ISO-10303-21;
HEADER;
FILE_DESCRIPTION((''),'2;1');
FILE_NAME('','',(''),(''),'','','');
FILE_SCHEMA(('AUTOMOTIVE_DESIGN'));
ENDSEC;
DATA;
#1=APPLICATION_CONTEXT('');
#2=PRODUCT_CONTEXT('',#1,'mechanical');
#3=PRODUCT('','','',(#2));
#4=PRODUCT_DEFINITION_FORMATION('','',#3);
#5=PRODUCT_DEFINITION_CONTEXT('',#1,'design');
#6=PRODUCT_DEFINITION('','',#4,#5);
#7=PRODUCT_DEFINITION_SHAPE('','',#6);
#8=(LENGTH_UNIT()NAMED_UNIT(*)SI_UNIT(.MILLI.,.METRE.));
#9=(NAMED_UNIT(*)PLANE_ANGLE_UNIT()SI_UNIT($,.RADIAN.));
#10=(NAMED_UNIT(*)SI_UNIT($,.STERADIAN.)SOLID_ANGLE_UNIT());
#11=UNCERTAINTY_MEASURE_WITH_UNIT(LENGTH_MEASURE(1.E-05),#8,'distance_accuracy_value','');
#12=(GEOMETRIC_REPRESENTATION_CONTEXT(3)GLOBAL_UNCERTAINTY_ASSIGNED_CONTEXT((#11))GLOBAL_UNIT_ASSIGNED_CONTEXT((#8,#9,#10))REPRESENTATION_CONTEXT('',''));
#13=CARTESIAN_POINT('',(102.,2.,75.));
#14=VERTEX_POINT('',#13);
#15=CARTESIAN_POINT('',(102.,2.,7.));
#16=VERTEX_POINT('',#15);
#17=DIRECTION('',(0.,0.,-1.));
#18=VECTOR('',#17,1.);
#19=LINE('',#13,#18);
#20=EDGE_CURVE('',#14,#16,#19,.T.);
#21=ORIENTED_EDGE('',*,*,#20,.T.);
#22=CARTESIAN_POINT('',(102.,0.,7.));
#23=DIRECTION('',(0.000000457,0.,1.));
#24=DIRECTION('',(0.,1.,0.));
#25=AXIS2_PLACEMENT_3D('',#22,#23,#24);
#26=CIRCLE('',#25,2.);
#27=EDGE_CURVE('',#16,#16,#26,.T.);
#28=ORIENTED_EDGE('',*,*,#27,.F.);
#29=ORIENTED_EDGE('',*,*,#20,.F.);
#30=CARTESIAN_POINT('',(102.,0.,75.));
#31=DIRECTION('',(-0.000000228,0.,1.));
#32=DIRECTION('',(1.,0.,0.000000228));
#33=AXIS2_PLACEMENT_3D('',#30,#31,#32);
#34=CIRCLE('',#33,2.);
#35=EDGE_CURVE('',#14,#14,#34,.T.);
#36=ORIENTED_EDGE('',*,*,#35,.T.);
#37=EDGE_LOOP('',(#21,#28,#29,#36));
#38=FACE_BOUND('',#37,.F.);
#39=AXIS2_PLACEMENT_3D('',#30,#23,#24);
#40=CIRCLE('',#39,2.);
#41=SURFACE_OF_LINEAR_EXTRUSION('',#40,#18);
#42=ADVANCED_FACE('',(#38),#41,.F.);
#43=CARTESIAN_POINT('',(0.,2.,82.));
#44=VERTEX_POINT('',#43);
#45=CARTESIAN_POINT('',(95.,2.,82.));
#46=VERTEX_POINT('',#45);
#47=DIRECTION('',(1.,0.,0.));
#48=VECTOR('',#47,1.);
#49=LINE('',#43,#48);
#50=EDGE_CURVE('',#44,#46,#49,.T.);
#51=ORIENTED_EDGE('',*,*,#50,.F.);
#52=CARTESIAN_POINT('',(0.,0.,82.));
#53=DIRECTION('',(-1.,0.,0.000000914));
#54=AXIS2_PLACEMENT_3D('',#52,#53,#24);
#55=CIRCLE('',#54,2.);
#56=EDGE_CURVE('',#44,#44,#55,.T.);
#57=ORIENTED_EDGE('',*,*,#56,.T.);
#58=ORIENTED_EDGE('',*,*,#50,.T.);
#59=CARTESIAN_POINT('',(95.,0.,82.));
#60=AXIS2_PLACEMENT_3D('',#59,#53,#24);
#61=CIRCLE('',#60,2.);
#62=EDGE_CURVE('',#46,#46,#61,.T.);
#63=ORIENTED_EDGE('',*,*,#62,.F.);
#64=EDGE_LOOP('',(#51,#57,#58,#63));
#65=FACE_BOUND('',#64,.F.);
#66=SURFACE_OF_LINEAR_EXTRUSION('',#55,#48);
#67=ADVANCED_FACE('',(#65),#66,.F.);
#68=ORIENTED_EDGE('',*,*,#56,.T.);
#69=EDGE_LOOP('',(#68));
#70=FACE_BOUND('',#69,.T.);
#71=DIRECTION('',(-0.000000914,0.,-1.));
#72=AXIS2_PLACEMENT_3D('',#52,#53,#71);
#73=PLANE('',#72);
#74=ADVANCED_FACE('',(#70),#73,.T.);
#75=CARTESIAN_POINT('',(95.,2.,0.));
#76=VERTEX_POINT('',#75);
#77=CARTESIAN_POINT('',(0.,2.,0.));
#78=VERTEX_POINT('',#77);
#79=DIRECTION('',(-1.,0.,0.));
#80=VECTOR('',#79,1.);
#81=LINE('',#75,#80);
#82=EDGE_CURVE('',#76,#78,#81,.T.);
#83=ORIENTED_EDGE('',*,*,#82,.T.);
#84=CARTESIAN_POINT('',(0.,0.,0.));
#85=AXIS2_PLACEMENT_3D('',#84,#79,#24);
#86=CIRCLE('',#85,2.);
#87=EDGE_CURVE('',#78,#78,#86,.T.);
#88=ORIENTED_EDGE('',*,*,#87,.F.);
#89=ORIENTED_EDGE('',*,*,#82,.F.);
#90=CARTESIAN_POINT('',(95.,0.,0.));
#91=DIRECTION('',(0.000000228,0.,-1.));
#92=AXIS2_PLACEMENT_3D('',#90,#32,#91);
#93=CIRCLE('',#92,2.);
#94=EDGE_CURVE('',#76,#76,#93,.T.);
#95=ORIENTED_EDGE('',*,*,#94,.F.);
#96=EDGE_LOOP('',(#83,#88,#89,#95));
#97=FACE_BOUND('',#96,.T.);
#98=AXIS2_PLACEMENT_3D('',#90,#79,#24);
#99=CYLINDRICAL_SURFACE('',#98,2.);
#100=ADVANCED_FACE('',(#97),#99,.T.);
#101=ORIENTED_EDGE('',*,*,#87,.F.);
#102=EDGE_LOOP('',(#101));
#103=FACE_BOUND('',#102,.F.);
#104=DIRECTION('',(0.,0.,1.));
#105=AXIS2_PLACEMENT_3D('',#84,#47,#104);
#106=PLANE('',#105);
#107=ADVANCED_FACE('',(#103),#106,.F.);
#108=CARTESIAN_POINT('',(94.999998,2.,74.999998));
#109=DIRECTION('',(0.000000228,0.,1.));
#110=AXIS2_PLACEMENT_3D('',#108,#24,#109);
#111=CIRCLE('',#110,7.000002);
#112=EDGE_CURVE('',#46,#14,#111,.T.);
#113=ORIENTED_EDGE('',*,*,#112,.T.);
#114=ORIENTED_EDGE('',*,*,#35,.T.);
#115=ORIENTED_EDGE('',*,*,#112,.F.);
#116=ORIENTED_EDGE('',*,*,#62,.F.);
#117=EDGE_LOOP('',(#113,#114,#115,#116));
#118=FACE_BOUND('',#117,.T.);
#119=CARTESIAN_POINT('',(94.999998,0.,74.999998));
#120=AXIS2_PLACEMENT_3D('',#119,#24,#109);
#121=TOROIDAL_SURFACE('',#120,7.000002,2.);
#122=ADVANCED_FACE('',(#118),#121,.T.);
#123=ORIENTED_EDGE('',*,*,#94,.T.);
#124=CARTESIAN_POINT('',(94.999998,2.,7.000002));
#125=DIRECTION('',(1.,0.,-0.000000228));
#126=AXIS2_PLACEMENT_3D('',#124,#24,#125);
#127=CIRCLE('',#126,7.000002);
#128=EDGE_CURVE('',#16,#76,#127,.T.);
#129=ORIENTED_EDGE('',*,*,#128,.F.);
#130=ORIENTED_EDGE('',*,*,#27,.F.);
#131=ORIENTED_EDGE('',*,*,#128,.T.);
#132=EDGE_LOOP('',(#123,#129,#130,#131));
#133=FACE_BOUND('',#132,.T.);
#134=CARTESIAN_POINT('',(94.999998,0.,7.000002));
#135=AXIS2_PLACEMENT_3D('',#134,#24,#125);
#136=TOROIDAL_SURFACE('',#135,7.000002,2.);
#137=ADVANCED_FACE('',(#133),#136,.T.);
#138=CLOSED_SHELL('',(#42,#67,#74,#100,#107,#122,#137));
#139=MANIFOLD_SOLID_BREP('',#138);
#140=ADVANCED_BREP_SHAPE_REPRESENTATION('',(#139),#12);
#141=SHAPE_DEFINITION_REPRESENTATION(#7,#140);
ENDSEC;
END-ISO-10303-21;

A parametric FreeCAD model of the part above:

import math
import FreeCAD as App
import Part
import Sketcher

V = App.Vector

doc = App.newDocument("Part")
params = doc.addObject("Spreadsheet::Sheet", "Params")
for row, (alias, value) in enumerate([
    ("sketch1_diameter", "4 mm"),
    ("sketch2_radius", "7.000002 mm"),
    ("sketch2_width", "95 mm"),
    ("sketch2_height", "68 mm"),
], start=1):
    params.set(f"A{row}", alias)
    params.set(f"B{row}", "=" + value)
    params.setAlias(f"B{row}", alias)

body = doc.addObject("PartDesign::Body", "Body")

# Sketch on YZ plane
sketch1 = doc.addObject("Sketcher::SketchObject", "Sketch")
body.addObject(sketch1)
sketch1.AttachmentSupport = (doc.YZ_Plane, [""])
sketch1.MapMode = "FlatFace"
sketch1.addGeometry(Part.Circle(V(0, 0, 0), V(0, 0, 1), 2), False)
sketch1.addConstraint([
    Sketcher.Constraint("Coincident", 0, 3, -1, 1),
    Sketcher.Constraint("Diameter", 0, 4.0),
])
sketch1.setExpression("Constraints[1]", "Params.sketch1_diameter")

# Sketch on XZ plane
sketch2 = doc.addObject("Sketcher::SketchObject", "Sketch001")
body.addObject(sketch2)
sketch2.AttachmentSupport = (doc.XZ_Plane, [""])
sketch2.MapMode = "FlatFace"
sketch2.addGeometry([
    Part.LineSegment(V(0, 82, 0), V(95, 82, 0)),  # 0
    Part.ArcOfCircle(Part.Circle(V(95, 75, 0), V(0, 0, 1), 7), math.radians(0), math.radians(90)),  # 1
    Part.LineSegment(V(102, 75, 0), V(102, 7, 0)),  # 2
    Part.ArcOfCircle(Part.Circle(V(95, 7, 0), V(0, 0, 1), 7), math.radians(-90), math.radians(0)),  # 3
    Part.LineSegment(V(95, 0, 0), V(0, 0, 0)),  # 4
], False)
sketch2.addConstraint([
    Sketcher.Constraint("Tangent", 0, 2, 1, 2),
    Sketcher.Constraint("Tangent", 1, 1, 2, 1),
    Sketcher.Constraint("Tangent", 2, 2, 3, 2),
    Sketcher.Constraint("Tangent", 3, 1, 4, 1),
    Sketcher.Constraint("Horizontal", 0),
    Sketcher.Constraint("Vertical", 2),
    Sketcher.Constraint("Horizontal", 4),
    Sketcher.Constraint("Coincident", 4, 2, -1, 1),
    Sketcher.Constraint("Equal", 1, 3),
    Sketcher.Constraint("PointOnObject", 0, 1, -2),
    Sketcher.Constraint("Radius", 1, 7.000002),
    Sketcher.Constraint("DistanceX", 0, 1, 0, 2, 95.0),
    Sketcher.Constraint("DistanceY", 2, 2, 2, 1, 68.0),
])
sketch2.setExpression("Constraints[10]", "Params.sketch2_radius")
sketch2.setExpression("Constraints[11]", "Params.sketch2_width")
sketch2.setExpression("Constraints[12]", "Params.sketch2_height")
doc.recompute()

additivepipe = doc.addObject("PartDesign::AdditivePipe", "AdditivePipe")
body.addObject(additivepipe)
additivepipe.Profile = sketch1
additivepipe.Spine = (sketch2, ["Edge1", "Edge2", "Edge3", "Edge4", "Edge5"])

doc.recompute()
